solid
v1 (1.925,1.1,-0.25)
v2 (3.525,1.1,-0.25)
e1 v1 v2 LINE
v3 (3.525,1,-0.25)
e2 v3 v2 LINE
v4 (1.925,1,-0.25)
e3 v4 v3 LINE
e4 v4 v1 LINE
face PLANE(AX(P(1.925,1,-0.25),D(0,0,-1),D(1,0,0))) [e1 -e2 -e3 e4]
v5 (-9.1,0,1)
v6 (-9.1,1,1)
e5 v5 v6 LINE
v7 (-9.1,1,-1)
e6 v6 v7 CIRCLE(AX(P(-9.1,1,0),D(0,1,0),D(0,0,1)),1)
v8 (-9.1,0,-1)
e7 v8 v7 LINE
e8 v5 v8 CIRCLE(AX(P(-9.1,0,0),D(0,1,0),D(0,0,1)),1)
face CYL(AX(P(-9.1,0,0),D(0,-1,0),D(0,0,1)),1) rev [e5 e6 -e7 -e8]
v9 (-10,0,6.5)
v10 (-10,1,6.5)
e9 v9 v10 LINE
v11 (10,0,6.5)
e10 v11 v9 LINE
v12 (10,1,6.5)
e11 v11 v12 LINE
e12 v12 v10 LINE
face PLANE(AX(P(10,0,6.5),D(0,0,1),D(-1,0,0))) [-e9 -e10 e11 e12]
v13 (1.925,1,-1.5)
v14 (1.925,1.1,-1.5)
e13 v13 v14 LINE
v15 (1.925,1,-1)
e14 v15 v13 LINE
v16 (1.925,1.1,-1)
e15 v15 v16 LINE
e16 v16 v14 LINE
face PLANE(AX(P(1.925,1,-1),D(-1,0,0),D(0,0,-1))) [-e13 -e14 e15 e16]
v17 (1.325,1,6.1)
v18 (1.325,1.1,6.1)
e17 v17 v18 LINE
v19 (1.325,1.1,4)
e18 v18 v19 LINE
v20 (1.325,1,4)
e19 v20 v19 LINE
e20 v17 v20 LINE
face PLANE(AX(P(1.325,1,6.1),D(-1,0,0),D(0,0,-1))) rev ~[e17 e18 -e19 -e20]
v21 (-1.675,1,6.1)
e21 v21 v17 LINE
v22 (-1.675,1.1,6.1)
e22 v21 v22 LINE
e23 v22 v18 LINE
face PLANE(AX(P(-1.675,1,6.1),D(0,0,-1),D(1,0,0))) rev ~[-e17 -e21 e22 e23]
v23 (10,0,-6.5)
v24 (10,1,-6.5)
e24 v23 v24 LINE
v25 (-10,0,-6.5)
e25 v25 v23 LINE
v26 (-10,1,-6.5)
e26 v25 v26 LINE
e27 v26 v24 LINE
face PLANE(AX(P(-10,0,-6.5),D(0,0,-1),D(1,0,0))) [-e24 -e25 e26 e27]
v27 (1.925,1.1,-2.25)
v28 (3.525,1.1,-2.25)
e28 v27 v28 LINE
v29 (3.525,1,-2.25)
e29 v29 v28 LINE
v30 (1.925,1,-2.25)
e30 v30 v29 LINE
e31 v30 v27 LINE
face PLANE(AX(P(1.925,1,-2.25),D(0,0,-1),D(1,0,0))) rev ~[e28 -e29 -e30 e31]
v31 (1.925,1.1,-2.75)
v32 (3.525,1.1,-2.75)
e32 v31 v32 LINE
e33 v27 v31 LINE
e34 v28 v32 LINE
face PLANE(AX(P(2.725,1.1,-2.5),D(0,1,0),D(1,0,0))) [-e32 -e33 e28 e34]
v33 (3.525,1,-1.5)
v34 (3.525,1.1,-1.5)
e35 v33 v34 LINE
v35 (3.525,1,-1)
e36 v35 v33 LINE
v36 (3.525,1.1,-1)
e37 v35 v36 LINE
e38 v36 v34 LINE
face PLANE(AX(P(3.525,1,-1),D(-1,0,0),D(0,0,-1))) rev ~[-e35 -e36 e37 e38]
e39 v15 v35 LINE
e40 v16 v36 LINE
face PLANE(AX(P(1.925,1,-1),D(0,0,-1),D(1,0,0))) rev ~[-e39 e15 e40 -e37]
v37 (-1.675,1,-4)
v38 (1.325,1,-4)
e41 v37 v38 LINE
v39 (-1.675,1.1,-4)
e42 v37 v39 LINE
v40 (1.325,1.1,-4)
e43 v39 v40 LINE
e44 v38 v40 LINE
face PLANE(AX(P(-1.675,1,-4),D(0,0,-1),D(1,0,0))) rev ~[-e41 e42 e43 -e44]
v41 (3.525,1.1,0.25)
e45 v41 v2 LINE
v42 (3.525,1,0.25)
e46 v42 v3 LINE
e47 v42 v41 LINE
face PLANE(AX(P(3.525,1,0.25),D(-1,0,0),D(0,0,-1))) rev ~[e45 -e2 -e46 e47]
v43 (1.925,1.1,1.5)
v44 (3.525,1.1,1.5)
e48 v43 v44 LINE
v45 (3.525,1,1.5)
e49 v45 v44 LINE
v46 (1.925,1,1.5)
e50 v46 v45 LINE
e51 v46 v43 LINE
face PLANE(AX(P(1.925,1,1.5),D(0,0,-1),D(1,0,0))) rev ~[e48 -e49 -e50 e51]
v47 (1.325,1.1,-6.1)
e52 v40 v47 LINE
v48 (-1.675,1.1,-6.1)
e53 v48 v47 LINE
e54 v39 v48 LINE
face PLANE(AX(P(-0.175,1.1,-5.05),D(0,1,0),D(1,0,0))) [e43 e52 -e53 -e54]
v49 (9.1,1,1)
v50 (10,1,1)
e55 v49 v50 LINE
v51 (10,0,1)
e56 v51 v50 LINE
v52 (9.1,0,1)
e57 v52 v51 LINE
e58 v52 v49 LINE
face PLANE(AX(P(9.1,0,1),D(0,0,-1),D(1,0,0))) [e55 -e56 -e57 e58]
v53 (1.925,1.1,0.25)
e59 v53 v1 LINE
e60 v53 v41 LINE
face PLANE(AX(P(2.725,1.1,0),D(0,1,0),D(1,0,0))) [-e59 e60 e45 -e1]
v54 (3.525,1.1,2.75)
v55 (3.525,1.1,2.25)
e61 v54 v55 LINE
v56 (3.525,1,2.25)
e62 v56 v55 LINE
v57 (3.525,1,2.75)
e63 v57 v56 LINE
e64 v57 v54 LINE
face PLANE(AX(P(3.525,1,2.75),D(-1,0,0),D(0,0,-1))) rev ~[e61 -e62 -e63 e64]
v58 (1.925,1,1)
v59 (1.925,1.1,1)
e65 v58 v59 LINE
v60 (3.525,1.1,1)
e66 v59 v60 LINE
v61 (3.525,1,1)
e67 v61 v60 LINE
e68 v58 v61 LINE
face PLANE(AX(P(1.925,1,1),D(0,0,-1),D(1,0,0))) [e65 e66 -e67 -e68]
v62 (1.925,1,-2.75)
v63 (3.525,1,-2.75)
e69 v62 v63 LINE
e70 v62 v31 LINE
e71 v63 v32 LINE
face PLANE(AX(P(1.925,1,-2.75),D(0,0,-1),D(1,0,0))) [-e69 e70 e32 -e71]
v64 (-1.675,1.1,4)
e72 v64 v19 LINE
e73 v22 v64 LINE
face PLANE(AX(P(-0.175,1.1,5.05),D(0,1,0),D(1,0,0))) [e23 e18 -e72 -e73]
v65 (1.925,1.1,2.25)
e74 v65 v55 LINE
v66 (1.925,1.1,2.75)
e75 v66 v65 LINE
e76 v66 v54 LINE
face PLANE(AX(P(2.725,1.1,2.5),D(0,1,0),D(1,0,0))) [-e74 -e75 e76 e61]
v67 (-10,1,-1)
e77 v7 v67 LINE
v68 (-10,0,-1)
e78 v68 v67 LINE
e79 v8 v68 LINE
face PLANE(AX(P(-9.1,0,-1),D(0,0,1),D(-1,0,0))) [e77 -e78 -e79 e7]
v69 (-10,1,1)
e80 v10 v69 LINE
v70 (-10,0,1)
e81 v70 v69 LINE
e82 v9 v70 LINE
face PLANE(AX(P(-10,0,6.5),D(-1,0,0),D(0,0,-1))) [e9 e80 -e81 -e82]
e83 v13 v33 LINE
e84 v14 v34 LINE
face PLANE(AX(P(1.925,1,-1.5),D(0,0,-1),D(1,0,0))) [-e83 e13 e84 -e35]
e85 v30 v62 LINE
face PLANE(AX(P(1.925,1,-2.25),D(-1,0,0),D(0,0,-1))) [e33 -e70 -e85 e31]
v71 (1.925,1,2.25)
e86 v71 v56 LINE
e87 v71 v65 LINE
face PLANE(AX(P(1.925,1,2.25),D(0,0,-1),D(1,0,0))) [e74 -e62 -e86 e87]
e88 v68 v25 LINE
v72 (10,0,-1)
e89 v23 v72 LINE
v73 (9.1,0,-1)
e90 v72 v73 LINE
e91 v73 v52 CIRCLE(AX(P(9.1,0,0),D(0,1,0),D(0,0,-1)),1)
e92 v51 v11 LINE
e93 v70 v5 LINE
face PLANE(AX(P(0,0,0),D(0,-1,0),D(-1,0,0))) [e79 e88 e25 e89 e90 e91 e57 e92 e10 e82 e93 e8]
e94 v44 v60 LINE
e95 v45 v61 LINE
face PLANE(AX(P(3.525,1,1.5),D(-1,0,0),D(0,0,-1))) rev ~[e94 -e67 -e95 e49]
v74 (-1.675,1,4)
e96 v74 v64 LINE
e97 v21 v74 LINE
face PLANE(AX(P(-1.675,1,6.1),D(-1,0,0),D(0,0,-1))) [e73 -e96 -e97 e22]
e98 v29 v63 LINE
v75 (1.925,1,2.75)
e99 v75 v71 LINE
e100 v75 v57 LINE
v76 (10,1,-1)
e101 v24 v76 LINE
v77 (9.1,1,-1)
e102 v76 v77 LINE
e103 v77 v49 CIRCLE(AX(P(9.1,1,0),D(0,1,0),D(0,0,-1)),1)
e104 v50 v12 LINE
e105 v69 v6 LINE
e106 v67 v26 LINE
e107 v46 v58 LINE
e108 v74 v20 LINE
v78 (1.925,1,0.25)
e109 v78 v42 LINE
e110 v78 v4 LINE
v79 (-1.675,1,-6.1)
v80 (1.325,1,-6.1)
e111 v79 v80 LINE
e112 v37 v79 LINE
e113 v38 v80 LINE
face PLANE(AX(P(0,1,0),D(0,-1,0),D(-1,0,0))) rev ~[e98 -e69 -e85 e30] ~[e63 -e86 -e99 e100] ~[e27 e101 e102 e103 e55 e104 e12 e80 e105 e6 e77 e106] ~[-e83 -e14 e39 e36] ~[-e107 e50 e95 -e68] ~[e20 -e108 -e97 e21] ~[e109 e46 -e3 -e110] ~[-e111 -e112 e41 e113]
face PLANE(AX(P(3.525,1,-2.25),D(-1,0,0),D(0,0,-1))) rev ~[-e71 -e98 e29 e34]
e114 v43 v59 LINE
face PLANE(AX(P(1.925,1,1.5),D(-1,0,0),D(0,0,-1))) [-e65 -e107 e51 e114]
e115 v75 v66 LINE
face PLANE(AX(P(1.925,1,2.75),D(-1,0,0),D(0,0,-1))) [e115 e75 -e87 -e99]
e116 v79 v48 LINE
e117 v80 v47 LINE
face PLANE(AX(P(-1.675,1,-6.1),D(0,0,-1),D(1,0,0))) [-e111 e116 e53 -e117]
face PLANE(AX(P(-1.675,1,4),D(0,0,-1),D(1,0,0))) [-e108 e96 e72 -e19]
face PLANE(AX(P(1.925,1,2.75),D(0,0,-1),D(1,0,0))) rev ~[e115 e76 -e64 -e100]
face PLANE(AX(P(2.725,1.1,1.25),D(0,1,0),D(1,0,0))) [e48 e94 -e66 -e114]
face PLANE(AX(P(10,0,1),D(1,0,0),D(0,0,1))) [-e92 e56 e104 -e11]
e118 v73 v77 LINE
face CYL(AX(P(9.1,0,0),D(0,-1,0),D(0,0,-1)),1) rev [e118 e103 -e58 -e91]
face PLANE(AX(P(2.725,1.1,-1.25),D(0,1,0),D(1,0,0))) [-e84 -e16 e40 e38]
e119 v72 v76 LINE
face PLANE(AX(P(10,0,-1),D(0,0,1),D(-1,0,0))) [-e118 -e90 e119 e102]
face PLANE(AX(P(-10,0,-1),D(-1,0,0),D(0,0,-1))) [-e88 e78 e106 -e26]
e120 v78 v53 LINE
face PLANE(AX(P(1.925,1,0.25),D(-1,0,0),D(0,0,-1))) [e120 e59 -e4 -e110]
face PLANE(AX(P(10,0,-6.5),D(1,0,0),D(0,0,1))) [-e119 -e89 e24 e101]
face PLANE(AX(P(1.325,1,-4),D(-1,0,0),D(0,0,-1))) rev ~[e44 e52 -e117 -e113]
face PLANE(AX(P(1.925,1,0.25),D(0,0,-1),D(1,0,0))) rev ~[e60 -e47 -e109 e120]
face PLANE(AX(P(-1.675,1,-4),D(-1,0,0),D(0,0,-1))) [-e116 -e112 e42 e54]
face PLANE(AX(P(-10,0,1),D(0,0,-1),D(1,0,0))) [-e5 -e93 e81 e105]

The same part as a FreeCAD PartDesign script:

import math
import FreeCAD as App
import Part
import Sketcher


def add_polygon(sketch, points):
    """Adds a closed chain of lines whose ends are joined by coincident constraints."""
    first, n = sketch.GeometryCount, len(points)
    for a, b in zip(points, points[1:] + points[:1]):
        sketch.addGeometry(Part.LineSegment(App.Vector(*a, 0), App.Vector(*b, 0)), False)
    for i in range(n):
        sketch.addConstraint(Sketcher.Constraint("Coincident", first + i, 2, first + (i + 1) % n, 1))

doc = App.newDocument("Part")
params = doc.addObject("Spreadsheet::Sheet", "Params")
for row, (alias, value) in enumerate([
    ("sketch1_radius", "1 mm"),
    ("sketch1_width", "20 mm"),
    ("sketch1_width2", "0.9 mm"),
    ("sketch1_height", "5.5 mm"),
    ("pad1_length", "1 mm"),
    ("sketch2_width", "3 mm"),
    ("sketch2_width2", "1.6 mm"),
    ("sketch2_height", "2.1 mm"),
    ("sketch2_height2", "0.5 mm"),
    ("pad2_length", "0.1 mm"),
], start=1):
    params.set(f"A{row}", alias)
    params.set(f"B{row}", "=" + value)
    params.setAlias(f"B{row}", alias)

body = doc.addObject("PartDesign::Body", "Body")

# Sketch on XZ plane
sketch1 = body.newObject("Sketcher::SketchObject", "Sketch")
sketch1.AttachmentSupport = (doc.getObject("XZ_Plane"), [""])
sketch1.MapMode = "FlatFace"
sketch1.addGeometry(Part.LineSegment(App.Vector(10, -6.5, 0), App.Vector(-10, -6.5, 0)), False)
sketch1.addGeometry(Part.LineSegment(App.Vector(-10, -6.5, 0), App.Vector(-10, -1, 0)), False)
sketch1.addGeometry(Part.LineSegment(App.Vector(-10, -1, 0), App.Vector(-9.1, -1, 0)), False)
sketch1.addGeometry(Part.ArcOfCircle(Part.Circle(App.Vector(-9.1, 0, 0), App.Vector(0, 0, 1), 1), math.radians(-90), math.radians(90)), False)
sketch1.addGeometry(Part.LineSegment(App.Vector(-9.1, 1, 0), App.Vector(-10, 1, 0)), False)
sketch1.addGeometry(Part.LineSegment(App.Vector(-10, 1, 0), App.Vector(-10, 6.5, 0)), False)
sketch1.addGeometry(Part.LineSegment(App.Vector(-10, 6.5, 0), App.Vector(10, 6.5, 0)), False)
sketch1.addGeometry(Part.LineSegment(App.Vector(10, 6.5, 0), App.Vector(10, 1, 0)), False)
sketch1.addGeometry(Part.LineSegment(App.Vector(10, 1, 0), App.Vector(9.1, 1, 0)), False)
sketch1.addGeometry(Part.ArcOfCircle(Part.Circle(App.Vector(9.1, 0, 0), App.Vector(0, 0, 1), 1), math.radians(90), math.radians(270)), False)
sketch1.addGeometry(Part.LineSegment(App.Vector(9.1, -1, 0), App.Vector(10, -1, 0)), False)
sketch1.addGeometry(Part.LineSegment(App.Vector(10, -1, 0), App.Vector(10, -6.5, 0)), False)
sketch1.addConstraint(Sketcher.Constraint("Coincident", 0, 2, 1, 1))
sketch1.addConstraint(Sketcher.Constraint("Coincident", 1, 2, 2, 1))
sketch1.addConstraint(Sketcher.Constraint("Tangent", 2, 2, 3, 1))
sketch1.addConstraint(Sketcher.Constraint("Tangent", 3, 2, 4, 1))
sketch1.addConstraint(Sketcher.Constraint("Coincident", 4, 2, 5, 1))
sketch1.addConstraint(Sketcher.Constraint("Coincident", 5, 2, 6, 1))
sketch1.addConstraint(Sketcher.Constraint("Coincident", 6, 2, 7, 1))
sketch1.addConstraint(Sketcher.Constraint("Coincident", 7, 2, 8, 1))
sketch1.addConstraint(Sketcher.Constraint("Tangent", 8, 2, 9, 1))
sketch1.addConstraint(Sketcher.Constraint("Tangent", 9, 2, 10, 1))
sketch1.addConstraint(Sketcher.Constraint("Coincident", 10, 2, 11, 1))
sketch1.addConstraint(Sketcher.Constraint("Coincident", 11, 2, 0, 1))
sketch1.addConstraint(Sketcher.Constraint("Horizontal", 0))
sketch1.addConstraint(Sketcher.Constraint("Vertical", 1))
sketch1.addConstraint(Sketcher.Constraint("Horizontal", 2))
sketch1.addConstraint(Sketcher.Constraint("Horizontal", 4))
sketch1.addConstraint(Sketcher.Constraint("Vertical", 5))
sketch1.addConstraint(Sketcher.Constraint("Horizontal", 6))
sketch1.addConstraint(Sketcher.Constraint("Vertical", 7))
sketch1.addConstraint(Sketcher.Constraint("Horizontal", 8))
sketch1.addConstraint(Sketcher.Constraint("Horizontal", 10))
sketch1.addConstraint(Sketcher.Constraint("Vertical", 11))
sketch1.addConstraint(Sketcher.Constraint("Equal", 3, 9))
sketch1.addConstraint(Sketcher.Constraint("Symmetric", 3, 3, 9, 3, -1, 1))
sketch1.addConstraint(Sketcher.Constraint("Symmetric", 0, 2, 6, 2, -1, 1))
sketch1.addConstraint(Sketcher.Constraint("Symmetric", 4, 2, 7, 2, -2))
sketch1.addConstraint(Sketcher.Constraint("Vertical", 7, 2, 10, 2))
sketch1.addConstraint(Sketcher.Constraint("Radius", 3, 1.0))
sketch1.addConstraint(Sketcher.Constraint("DistanceX", 0, 2, 0, 1, 20.0))
sketch1.addConstraint(Sketcher.Constraint("DistanceX", 2, 1, 2, 2, 0.9))
sketch1.addConstraint(Sketcher.Constraint("DistanceY", 1, 1, 1, 2, 5.5))
sketch1.setExpression("Constraints[27]", "Params.sketch1_radius")
sketch1.setExpression("Constraints[28]", "Params.sketch1_width")
sketch1.setExpression("Constraints[29]", "Params.sketch1_width2")
sketch1.setExpression("Constraints[30]", "Params.sketch1_height")
pad1 = body.newObject("PartDesign::Pad", "Pad")
pad1.Profile = sketch1
pad1.setExpression("Length", "Params.pad1_length")
pad1.Reversed = True

# Sketch on XZ plane
sketch2 = body.newObject("Sketcher::SketchObject", "Sketch001")
sketch2.AttachmentSupport = (doc.getObject("XZ_Plane"), [""])
sketch2.MapMode = "FlatFace"
sketch2.AttachmentOffset = App.Placement(App.Vector(0, 0, -1), App.Rotation())
add_polygon(sketch2, [(-1.7, 4), (-1.7, 6.1), (1.3, 6.1), (1.3, 4)])  # lines 0-3
add_polygon(sketch2, [(1.9, 2.2), (1.9, 2.8), (3.5, 2.8), (3.5, 2.2)])  # lines 4-7
add_polygon(sketch2, [(1.9, 1), (1.9, 1.5), (3.5, 1.5), (3.5, 1)])  # lines 8-11
add_polygon(sketch2, [(1.9, -0.2), (1.9, 0.2), (3.5, 0.2), (3.5, -0.2)])  # lines 12-15
add_polygon(sketch2, [(1.9, -1.5), (1.9, -1), (3.5, -1), (3.5, -1.5)])  # lines 16-19
add_polygon(sketch2, [(1.9, -2.8), (1.9, -2.2), (3.5, -2.2), (3.5, -2.8)])  # lines 20-23
add_polygon(sketch2, [(-1.7, -6.1), (-1.7, -4), (1.3, -4), (1.3, -6.1)])  # lines 24-27
sketch2.addConstraint(Sketcher.Constraint("Vertical", 0))
sketch2.addConstraint(Sketcher.Constraint("Horizontal", 1))
sketch2.addConstraint(Sketcher.Constraint("Vertical", 2))
sketch2.addConstraint(Sketcher.Constraint("Horizontal", 3))
sketch2.addConstraint(Sketcher.Constraint("Vertical", 4))
sketch2.addConstraint(Sketcher.Constraint("Horizontal", 5))
sketch2.addConstraint(Sketcher.Constraint("Vertical", 6))
sketch2.addConstraint(Sketcher.Constraint("Horizontal", 7))
sketch2.addConstraint(Sketcher.Constraint("Vertical", 8))
sketch2.addConstraint(Sketcher.Constraint("Horizontal", 9))
sketch2.addConstraint(Sketcher.Constraint("Vertical", 10))
sketch2.addConstraint(Sketcher.Constraint("Horizontal", 11))
sketch2.addConstraint(Sketcher.Constraint("Vertical", 12))
sketch2.addConstraint(Sketcher.Constraint("Horizontal", 13))
sketch2.addConstraint(Sketcher.Constraint("Vertical", 14))
sketch2.addConstraint(Sketcher.Constraint("Horizontal", 15))
sketch2.addConstraint(Sketcher.Constraint("Vertical", 16))
sketch2.addConstraint(Sketcher.Constraint("Horizontal", 17))
sketch2.addConstraint(Sketcher.Constraint("Vertical", 18))
sketch2.addConstraint(Sketcher.Constraint("Horizontal", 19))
sketch2.addConstraint(Sketcher.Constraint("Vertical", 20))
sketch2.addConstraint(Sketcher.Constraint("Horizontal", 21))
sketch2.addConstraint(Sketcher.Constraint("Vertical", 22))
sketch2.addConstraint(Sketcher.Constraint("Horizontal", 23))
sketch2.addConstraint(Sketcher.Constraint("Vertical", 24))
sketch2.addConstraint(Sketcher.Constraint("Horizontal", 25))
sketch2.addConstraint(Sketcher.Constraint("Vertical", 26))
sketch2.addConstraint(Sketcher.Constraint("Horizontal", 27))
sketch2.addConstraint(Sketcher.Constraint("Symmetric", 11, 2, 16, 2, -1))
sketch2.addConstraint(Sketcher.Constraint("Symmetric", 9, 2, 18, 2, -1))
sketch2.addConstraint(Sketcher.Constraint("Symmetric", 7, 2, 20, 2, -1))
sketch2.addConstraint(Sketcher.Constraint("Symmetric", 5, 2, 22, 2, -1))
sketch2.addConstraint(Sketcher.Constraint("Symmetric", 3, 2, 24, 2, -1))
sketch2.addConstraint(Sketcher.Constraint("Symmetric", 1, 2, 26, 2, -1))
sketch2.addConstraint(Sketcher.Constraint("Vertical", 7, 2, 8, 2))
sketch2.addConstraint(Sketcher.Constraint("Vertical", 6, 2, 9, 2))
sketch2.addConstraint(Sketcher.Constraint("Vertical", 11, 2, 12, 2))
sketch2.addConstraint(Sketcher.Constraint("Vertical", 10, 2, 13, 2))
sketch2.addConstraint(Sketcher.Constraint("Equal", 6, 8))
sketch2.addConstraint(Sketcher.Constraint("Equal", 10, 12))
sketch2.addConstraint(Sketcher.Constraint("DistanceX", 1, 1, 1, 2, 3.0))
sketch2.addConstraint(Sketcher.Constraint("DistanceX", 5, 1, 5, 2, 1.6))
sketch2.addConstraint(Sketcher.Constraint("DistanceY", 0, 1, 0, 2, 2.1))
sketch2.addConstraint(Sketcher.Constraint("DistanceY", 4, 1, 4, 2, 0.5))
sketch2.addConstraint(Sketcher.Constraint("DistanceY", -1, 1, 2, 2, 4.0))
sketch2.addConstraint(Sketcher.Constraint("DistanceY", -1, 1, 10, 2, 1.0))
sketch2.addConstraint(Sketcher.Constraint("DistanceY", 12, 2, 7, 2, 2.0))
sketch2.addConstraint(Sketcher.Constraint("DistanceY", 20, 2, 15, 2, 2.0))
sketch2.addConstraint(Sketcher.Constraint("DistanceX", 2, 2, 4, 2, 0.6))
sketch2.addConstraint(Sketcher.Constraint("DistanceX", 0, 2, -1, 1, 1.675))
sketch2.setExpression("Constraints[68]", "Params.sketch2_width")
sketch2.setExpression("Constraints[69]", "Params.sketch2_width2")
sketch2.setExpression("Constraints[70]", "Params.sketch2_height")
sketch2.setExpression("Constraints[71]", "Params.sketch2_height2")
pad2 = body.newObject("PartDesign::Pad", "Pad001")
pad2.Profile = sketch2
pad2.setExpression("Length", "Params.pad2_length")
pad2.Reversed = True

doc.recompute()
